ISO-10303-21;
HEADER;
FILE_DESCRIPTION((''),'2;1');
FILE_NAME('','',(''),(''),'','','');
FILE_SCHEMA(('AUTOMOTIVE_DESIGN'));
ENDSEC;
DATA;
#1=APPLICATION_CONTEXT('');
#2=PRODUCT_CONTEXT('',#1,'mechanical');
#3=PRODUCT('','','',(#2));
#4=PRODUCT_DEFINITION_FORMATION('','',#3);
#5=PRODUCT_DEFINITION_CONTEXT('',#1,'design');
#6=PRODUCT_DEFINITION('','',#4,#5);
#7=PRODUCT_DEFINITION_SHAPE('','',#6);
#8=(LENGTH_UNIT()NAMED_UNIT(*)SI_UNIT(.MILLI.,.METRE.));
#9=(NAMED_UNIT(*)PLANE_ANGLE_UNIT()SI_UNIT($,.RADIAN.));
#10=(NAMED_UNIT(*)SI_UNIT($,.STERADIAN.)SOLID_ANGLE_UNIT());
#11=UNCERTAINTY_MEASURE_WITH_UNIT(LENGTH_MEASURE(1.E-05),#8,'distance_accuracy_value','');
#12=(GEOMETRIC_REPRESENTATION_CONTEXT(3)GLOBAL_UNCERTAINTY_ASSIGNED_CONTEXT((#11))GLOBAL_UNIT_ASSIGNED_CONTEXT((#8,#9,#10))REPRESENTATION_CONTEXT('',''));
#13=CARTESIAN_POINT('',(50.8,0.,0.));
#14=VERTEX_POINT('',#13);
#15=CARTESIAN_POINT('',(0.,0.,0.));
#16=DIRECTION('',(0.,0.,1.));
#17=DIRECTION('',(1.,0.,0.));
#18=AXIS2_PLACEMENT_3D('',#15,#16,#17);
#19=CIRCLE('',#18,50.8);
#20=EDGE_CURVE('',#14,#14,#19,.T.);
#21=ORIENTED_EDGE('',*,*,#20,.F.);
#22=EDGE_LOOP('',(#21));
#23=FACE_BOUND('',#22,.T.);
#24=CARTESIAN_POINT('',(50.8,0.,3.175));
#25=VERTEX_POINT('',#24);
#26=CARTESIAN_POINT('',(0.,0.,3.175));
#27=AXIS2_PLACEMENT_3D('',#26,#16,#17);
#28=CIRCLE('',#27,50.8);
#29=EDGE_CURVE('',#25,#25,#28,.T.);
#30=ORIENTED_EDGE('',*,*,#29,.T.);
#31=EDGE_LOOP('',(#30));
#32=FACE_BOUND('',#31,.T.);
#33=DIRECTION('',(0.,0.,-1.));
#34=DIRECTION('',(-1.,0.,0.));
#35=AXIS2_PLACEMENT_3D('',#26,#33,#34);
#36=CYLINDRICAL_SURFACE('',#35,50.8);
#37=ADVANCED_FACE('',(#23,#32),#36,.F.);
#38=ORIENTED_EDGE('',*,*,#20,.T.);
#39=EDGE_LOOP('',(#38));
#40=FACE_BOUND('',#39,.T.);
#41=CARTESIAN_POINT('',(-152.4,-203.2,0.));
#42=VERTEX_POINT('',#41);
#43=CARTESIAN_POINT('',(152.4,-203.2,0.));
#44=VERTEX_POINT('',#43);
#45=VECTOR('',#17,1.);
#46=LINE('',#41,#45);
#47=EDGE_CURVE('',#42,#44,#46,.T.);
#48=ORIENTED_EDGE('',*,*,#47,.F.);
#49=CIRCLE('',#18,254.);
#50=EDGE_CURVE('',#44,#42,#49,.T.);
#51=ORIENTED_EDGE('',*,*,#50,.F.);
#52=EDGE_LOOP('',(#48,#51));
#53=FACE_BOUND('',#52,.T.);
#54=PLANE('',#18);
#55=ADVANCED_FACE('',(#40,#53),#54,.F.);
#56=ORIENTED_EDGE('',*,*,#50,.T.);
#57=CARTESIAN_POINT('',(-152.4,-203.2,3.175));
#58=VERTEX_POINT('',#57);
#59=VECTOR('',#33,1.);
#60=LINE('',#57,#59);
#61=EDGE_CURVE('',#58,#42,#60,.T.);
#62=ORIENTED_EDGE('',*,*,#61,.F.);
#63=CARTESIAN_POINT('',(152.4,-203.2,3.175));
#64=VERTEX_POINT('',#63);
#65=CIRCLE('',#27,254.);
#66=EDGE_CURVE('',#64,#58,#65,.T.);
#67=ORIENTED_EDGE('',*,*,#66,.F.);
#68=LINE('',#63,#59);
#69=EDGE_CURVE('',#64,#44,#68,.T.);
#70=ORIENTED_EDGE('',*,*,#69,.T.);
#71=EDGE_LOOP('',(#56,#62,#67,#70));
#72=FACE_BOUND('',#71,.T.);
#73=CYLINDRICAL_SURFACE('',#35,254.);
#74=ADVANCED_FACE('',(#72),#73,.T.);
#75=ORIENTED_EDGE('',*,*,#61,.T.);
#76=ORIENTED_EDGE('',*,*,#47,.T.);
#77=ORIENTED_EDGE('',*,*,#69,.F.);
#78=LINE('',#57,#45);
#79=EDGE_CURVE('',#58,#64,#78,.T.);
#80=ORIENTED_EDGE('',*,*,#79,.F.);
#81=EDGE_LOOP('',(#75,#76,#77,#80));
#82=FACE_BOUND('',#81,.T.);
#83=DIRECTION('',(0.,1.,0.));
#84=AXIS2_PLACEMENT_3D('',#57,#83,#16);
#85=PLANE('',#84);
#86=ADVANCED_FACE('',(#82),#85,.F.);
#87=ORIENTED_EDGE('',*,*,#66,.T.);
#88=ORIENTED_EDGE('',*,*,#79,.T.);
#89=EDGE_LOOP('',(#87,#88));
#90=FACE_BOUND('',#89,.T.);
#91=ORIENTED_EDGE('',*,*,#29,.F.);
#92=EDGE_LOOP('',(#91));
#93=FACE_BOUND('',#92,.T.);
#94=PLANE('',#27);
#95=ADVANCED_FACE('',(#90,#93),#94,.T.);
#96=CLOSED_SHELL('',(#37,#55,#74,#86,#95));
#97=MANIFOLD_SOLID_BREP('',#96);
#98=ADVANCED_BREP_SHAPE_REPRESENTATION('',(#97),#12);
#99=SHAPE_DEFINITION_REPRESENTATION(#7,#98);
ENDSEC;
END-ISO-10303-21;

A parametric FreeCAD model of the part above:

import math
import FreeCAD as App
import Part
import Sketcher
from FreeCAD import Vector
Q = App.Units.Quantity

doc = App.newDocument("Part")
body = doc.addObject("PartDesign::Body", "Body")

# Sketch on XY plane
sketch1 = body.newObject("Sketcher::SketchObject", "Sketch")
sketch1.AttachmentSupport = (doc.getObject("XY_Plane"), [""])
sketch1.MapMode = "FlatFace"
sketch1.addGeometry([
    Part.LineSegment(Vector(-152.4, -203.2, 0), Vector(152.4, -203.2, 0)),
    Part.ArcOfCircle(Part.Circle(Vector(0, 0, 0), Vector(0, 0, 1), 254), math.radians(-53.130102), math.radians(233.130102)),
    Part.Circle(Vector(0, 0, 0), Vector(0, 0, 1), 50.8),
], False)
sketch1.addConstraint([
    Sketcher.Constraint("Coincident", 0, 1, 1, 2),
    Sketcher.Constraint("Coincident", 1, 1, 0, 2),
    Sketcher.Constraint("Horizontal", 0),
    Sketcher.Constraint("Coincident", 1, 3, -1, 1),
    Sketcher.Constraint("Coincident", 2, 3, -1, 1),
    Sketcher.Constraint("Diameter", 2, Q("4 in")),
    Sketcher.Constraint("Radius", 1, Q("10 in")),
    Sketcher.Constraint("DistanceX", 0, 1, 0, 2, Q("12 in")),
])
pad1 = body.newObject("PartDesign::Pad", "Pad")
pad1.Profile = sketch1
pad1.Length = Q("0.125 in")

doc.recompute()
